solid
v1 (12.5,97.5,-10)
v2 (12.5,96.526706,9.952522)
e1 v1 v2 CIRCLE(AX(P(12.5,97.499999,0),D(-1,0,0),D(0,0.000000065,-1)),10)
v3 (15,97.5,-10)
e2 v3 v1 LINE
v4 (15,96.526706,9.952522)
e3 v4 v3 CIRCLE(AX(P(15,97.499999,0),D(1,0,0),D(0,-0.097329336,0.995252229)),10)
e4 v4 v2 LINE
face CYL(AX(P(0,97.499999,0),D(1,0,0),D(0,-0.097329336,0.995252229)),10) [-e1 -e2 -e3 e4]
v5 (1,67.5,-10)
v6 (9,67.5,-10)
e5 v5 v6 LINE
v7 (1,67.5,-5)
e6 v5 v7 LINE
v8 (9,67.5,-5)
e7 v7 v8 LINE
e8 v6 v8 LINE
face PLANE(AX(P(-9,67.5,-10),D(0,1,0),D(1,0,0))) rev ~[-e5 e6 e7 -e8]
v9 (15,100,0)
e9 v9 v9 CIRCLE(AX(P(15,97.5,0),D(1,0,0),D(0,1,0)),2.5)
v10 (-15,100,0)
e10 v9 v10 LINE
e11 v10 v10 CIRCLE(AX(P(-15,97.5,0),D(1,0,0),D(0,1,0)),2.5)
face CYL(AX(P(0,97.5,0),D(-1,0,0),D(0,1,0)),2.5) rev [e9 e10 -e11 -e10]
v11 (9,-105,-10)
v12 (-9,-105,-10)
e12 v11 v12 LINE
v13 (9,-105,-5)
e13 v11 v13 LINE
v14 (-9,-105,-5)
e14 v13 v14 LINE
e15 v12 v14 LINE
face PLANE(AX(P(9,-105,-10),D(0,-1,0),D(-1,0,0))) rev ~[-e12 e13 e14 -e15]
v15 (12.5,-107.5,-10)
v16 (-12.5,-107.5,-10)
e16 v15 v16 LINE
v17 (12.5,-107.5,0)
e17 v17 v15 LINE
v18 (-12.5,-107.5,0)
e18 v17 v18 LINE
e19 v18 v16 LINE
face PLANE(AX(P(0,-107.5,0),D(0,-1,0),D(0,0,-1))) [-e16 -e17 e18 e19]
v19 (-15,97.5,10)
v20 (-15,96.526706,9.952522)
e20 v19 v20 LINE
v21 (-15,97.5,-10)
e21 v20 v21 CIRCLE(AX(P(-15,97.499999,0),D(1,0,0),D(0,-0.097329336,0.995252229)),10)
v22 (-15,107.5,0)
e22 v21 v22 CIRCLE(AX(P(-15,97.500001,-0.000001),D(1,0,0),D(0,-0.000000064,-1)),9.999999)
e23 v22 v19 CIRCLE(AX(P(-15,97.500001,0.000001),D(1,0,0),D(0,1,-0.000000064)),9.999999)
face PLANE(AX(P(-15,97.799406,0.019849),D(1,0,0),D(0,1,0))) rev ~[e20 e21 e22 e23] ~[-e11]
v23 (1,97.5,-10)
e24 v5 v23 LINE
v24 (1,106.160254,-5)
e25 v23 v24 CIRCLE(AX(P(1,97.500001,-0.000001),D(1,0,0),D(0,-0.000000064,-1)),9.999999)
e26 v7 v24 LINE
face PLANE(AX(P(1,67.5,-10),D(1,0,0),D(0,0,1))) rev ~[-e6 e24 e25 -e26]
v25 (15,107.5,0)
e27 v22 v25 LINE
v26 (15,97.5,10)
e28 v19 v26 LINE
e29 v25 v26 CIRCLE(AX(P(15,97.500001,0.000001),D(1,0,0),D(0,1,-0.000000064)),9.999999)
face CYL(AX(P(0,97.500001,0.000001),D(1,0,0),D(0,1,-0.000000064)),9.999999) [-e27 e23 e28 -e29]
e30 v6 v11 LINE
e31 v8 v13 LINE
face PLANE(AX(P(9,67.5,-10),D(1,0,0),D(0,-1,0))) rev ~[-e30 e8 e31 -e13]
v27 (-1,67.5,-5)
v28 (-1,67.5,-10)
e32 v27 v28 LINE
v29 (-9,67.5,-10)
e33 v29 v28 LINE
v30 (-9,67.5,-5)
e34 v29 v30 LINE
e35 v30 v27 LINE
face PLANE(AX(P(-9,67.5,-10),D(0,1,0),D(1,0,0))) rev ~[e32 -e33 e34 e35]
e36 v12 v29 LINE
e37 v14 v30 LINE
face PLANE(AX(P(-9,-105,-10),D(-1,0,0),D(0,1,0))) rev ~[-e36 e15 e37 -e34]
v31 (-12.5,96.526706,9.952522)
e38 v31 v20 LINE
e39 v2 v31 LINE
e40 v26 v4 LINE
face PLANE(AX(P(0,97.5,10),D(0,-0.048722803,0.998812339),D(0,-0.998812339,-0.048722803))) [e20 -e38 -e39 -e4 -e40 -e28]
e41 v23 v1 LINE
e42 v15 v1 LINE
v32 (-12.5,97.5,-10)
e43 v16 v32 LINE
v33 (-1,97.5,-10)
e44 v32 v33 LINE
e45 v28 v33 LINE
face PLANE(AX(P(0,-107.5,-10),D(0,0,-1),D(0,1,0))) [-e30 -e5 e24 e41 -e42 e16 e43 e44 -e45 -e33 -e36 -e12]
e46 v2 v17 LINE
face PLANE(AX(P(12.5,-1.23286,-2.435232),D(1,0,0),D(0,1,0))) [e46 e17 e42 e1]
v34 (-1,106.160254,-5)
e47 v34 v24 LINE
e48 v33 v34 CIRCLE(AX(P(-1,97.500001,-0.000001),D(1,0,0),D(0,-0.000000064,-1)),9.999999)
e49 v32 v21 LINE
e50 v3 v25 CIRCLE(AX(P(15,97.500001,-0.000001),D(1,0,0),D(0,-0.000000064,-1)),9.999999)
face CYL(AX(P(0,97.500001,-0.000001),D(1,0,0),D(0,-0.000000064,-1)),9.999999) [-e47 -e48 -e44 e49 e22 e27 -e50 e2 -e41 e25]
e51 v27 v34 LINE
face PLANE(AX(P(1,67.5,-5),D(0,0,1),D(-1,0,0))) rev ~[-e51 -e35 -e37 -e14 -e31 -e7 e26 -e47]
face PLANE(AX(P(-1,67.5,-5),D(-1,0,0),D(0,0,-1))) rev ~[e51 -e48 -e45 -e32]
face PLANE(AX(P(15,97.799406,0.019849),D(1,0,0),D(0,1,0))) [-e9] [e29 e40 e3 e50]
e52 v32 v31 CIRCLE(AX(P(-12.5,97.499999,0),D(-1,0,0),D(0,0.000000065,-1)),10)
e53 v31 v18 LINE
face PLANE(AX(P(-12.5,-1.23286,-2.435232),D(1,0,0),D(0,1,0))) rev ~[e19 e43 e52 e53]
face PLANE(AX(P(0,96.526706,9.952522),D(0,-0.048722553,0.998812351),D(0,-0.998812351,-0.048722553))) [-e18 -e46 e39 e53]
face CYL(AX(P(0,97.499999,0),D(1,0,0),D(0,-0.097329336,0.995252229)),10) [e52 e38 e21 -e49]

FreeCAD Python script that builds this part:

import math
import FreeCAD as App
import Part
import Sketcher
Q = App.Units.Quantity

doc = App.newDocument("Part")
body = doc.addObject("PartDesign::Body", "Body")

# Sketch on YZ plane
sketch1 = body.newObject("Sketcher::SketchObject", "Sketch")
sketch1.AttachmentSupport = (doc.getObject("YZ_Plane"), [""])
sketch1.MapMode = "FlatFace"
sketch1.addGeometry([
    Part.ArcOfCircle(Part.Circle(App.Vector(97.500001, -0.000001, 0), App.Vector(0, 0, 1), 9.999999), math.radians(-90.000004), math.radians(0.000004)),  # 0
    Part.ArcOfCircle(Part.Circle(App.Vector(97.500001, 0.000001, 0), App.Vector(0, 0, 1), 9.999999), math.radians(-0.000004), math.radians(90.000004)),  # 1
    Part.LineSegment(App.Vector(97.5, 10, 0), App.Vector(96.526706, 9.952522, 0)),  # 2
    Part.ArcOfCircle(Part.Circle(App.Vector(97.499999, 0, 0), App.Vector(0, 0, 1), 10), math.radians(95.585402), math.radians(270.000004)),  # 3
    Part.Circle(App.Vector(97.5, 0, 0), App.Vector(0, 0, 1), 2.5),  # 4
], False)
sketch1.addConstraint([
    Sketcher.Constraint("Tangent", 0, 2, 1, 1),
    Sketcher.Constraint("Coincident", 1, 2, 2, 1),
    Sketcher.Constraint("Coincident", 2, 2, 3, 1),
    Sketcher.Constraint("Tangent", 3, 2, 0, 1),
    Sketcher.Constraint("Coincident", 4, 3, 0, 3),
    Sketcher.Constraint("Equal", 0, 1),
    Sketcher.Constraint("Equal", 1, 3),
    Sketcher.Constraint("Symmetric", 1, 2, 3, 2, -1),
    Sketcher.Constraint("PointOnObject", 0, 2, -1),
    Sketcher.Constraint("Vertical", 4, 3, 1, 2),
    Sketcher.Constraint("Diameter", 4, Q("5 mm")),
    Sketcher.Constraint("Radius", 0, Q("9.999999 mm")),
    Sketcher.Constraint("DistanceX", -1, 1, 0, 3, Q("97.500001 mm")),
    Sketcher.Constraint("Distance", 2, Q("0.974451 mm")),
])
pad1 = body.newObject("PartDesign::Pad", "Pad")
pad1.Profile = sketch1
pad1.Type = "TwoLengths"
pad1.Length = 15
pad1.Length2 = 15

# Sketch on YZ plane
sketch2 = body.newObject("Sketcher::SketchObject", "Sketch001")
sketch2.AttachmentSupport = (doc.getObject("YZ_Plane"), [""])
sketch2.MapMode = "FlatFace"
sketch2.addGeometry([
    Part.LineSegment(App.Vector(-107.5, -10, 0), App.Vector(97.5, -10, 0)),
    Part.ArcOfCircle(Part.Circle(App.Vector(97.499999, 0, 0), App.Vector(0, 0, 1), 10), math.radians(95.585402), math.radians(270.000004)),
    Part.LineSegment(App.Vector(96.526706, 9.952522, 0), App.Vector(-107.5, 0, 0)),
    Part.LineSegment(App.Vector(-107.5, 0, 0), App.Vector(-107.5, -10, 0)),
], False)
sketch2.addConstraint([
    Sketcher.Constraint("Tangent", 0, 2, 1, 2),
    Sketcher.Constraint("Coincident", 1, 1, 2, 1),
    Sketcher.Constraint("Coincident", 2, 2, 3, 1),
    Sketcher.Constraint("Coincident", 3, 2, 0, 1),
    Sketcher.Constraint("Horizontal", 0),
    Sketcher.Constraint("Vertical", 3),
    Sketcher.Constraint("PointOnObject", 1, 3, -1),
    Sketcher.Constraint("PointOnObject", 2, 2, -1),
    Sketcher.Constraint("Radius", 1, Q("10 mm")),
    Sketcher.Constraint("DistanceX", 0, 1, 0, 2, Q("205 mm")),
    Sketcher.Constraint("DistanceX", -1, 1, 1, 3, Q("97.499999 mm")),
    Sketcher.Constraint("DistanceY", -1, 1, 1, 1, Q("9.952522 mm")),
])
pad2 = body.newObject("PartDesign::Pad", "Pad001")
pad2.Profile = sketch2
pad2.Type = "TwoLengths"
pad2.Length = 12.5
pad2.Length2 = 12.5

# Sketch on XY plane
sketch3 = body.newObject("Sketcher::SketchObject", "Sketch002")
sketch3.AttachmentSupport = (doc.getObject("XY_Plane"), [""])
sketch3.MapMode = "FlatFace"
sketch3.AttachmentOffset = App.Placement(App.Vector(0, 0, -10), App.Rotation())
sketch3.addGeometry([
    Part.LineSegment(App.Vector(9, 67.5, 0), App.Vector(9, -105, 0)),
    Part.LineSegment(App.Vector(9, -105, 0), App.Vector(-9, -105, 0)),
    Part.LineSegment(App.Vector(-9, -105, 0), App.Vector(-9, 67.5, 0)),
    Part.LineSegment(App.Vector(-9, 67.5, 0), App.Vector(9, 67.5, 0)),
], False)
sketch3.addConstraint([
    Sketcher.Constraint("Coincident", 0, 2, 1, 1),
    Sketcher.Constraint("Coincident", 1, 2, 2, 1),
    Sketcher.Constraint("Coincident", 2, 2, 3, 1),
    Sketcher.Constraint("Coincident", 3, 2, 0, 1),
    Sketcher.Constraint("Vertical", 0),
    Sketcher.Constraint("Horizontal", 1),
    Sketcher.Constraint("Vertical", 2),
    Sketcher.Constraint("Horizontal", 3),
    Sketcher.Constraint("DistanceX", 1, 2, 1, 1, Q("18 mm")),
    Sketcher.Constraint("DistanceY", 0, 2, 0, 1, Q("172.5 mm")),
    Sketcher.Constraint("DistanceX", -1, 1, 0, 2, Q("9 mm")),
    Sketcher.Constraint("DistanceY", 0, 2, -1, 1, Q("105 mm")),
])
pocket1 = body.newObject("PartDesign::Pocket", "Pocket")
pocket1.Profile = sketch3
pocket1.Length = 5
pocket1.Reversed = True

# Sketch on XZ plane
sketch4 = body.newObject("Sketcher::SketchObject", "Sketch003")
sketch4.AttachmentSupport = (doc.getObject("XZ_Plane"), [""])
sketch4.MapMode = "FlatFace"
sketch4.AttachmentOffset = App.Placement(App.Vector(0, 0, -67.5), App.Rotation())
sketch4.addGeometry([
    Part.LineSegment(App.Vector(-1, -10, 0), App.Vector(1, -10, 0)),
    Part.LineSegment(App.Vector(1, -10, 0), App.Vector(1, -5, 0)),
    Part.LineSegment(App.Vector(1, -5, 0), App.Vector(-1, -5, 0)),
    Part.LineSegment(App.Vector(-1, -5, 0), App.Vector(-1, -10, 0)),
], False)
sketch4.addConstraint([
    Sketcher.Constraint("Coincident", 0, 2, 1, 1),
    Sketcher.Constraint("Coincident", 1, 2, 2, 1),
    Sketcher.Constraint("Coincident", 2, 2, 3, 1),
    Sketcher.Constraint("Coincident", 3, 2, 0, 1),
    Sketcher.Constraint("Horizontal", 0),
    Sketcher.Constraint("Vertical", 1),
    Sketcher.Constraint("Horizontal", 2),
    Sketcher.Constraint("Vertical", 3),
    Sketcher.Constraint("DistanceX", 0, 1, 0, 2, Q("2 mm")),
    Sketcher.Constraint("DistanceY", 1, 1, 1, 2, Q("5 mm")),
    Sketcher.Constraint("DistanceX", -1, 1, 0, 2, Q("1 mm")),
    Sketcher.Constraint("DistanceY", 0, 2, -1, 1, Q("10 mm")),
])
pocket2 = body.newObject("PartDesign::Pocket", "Pocket001")
pocket2.Profile = sketch4
pocket2.Type = "ThroughAll"

doc.recompute()
